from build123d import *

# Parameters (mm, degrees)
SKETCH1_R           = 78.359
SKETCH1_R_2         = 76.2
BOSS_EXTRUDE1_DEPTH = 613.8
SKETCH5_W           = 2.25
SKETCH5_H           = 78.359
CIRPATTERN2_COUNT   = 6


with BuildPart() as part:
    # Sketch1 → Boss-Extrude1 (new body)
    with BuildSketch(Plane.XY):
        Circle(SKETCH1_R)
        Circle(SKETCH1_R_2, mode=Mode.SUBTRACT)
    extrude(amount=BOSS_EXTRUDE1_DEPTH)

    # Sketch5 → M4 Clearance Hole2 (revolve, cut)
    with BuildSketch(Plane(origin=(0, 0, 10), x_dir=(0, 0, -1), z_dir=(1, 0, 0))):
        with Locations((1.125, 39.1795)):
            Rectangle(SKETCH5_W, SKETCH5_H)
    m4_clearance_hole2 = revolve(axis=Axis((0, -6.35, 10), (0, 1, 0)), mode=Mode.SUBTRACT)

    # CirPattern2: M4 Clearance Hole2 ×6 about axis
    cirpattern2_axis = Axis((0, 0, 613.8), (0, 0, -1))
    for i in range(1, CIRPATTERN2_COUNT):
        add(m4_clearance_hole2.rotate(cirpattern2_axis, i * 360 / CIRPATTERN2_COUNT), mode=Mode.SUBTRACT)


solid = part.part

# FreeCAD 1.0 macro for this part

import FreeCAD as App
import Part
import Sketcher
from FreeCAD import Vector
Q = App.Units.Quantity


def add_polygon(sketch, points):
    """Adds a closed chain of lines whose ends are joined by coincident constraints."""
    first, n = sketch.GeometryCount, len(points)
    for a, b in zip(points, points[1:] + points[:1]):
        sketch.addGeometry(Part.LineSegment(App.Vector(*a, 0), App.Vector(*b, 0)), False)
    for i in range(n):
        sketch.addConstraint(Sketcher.Constraint("Coincident", first + i, 2, first + (i + 1) % n, 1))

doc = App.newDocument("Part")
body = doc.addObject("PartDesign::Body", "Body")

sketch1 = doc.addObject("Sketcher::SketchObject", "Sketch")
body.addObject(sketch1)
sketch1.AttachmentSupport = (doc.XY_Plane, [""])
sketch1.MapMode = "FlatFace"
sketch1.addGeometry([
    Part.Circle(Vector(0, 0, 0), Vector(0, 0, 1), 78),
    Part.Circle(Vector(0, 0, 0), Vector(0, 0, 1), 76),
], False)
sketch1.addConstraint([
    Sketcher.Constraint("Coincident", 0, 3, -1, 1),
    Sketcher.Constraint("Coincident", 1, 3, -1, 1),
    Sketcher.Constraint("Diameter", 1, Q("6 in")),
    Sketcher.Constraint("Diameter", 0, Q("6.17 in")),
])
pad1 = doc.addObject("PartDesign::Pad", "Pad")
body.addObject(pad1)
pad1.Profile = sketch1
pad1.Length = 613.8

sketch2 = doc.addObject("Sketcher::SketchObject", "Sketch001")
body.addObject(sketch2)
sketch2.AttachmentSupport = (doc.YZ_Plane, [""])
sketch2.MapMode = "FlatFace"
add_polygon(sketch2, [(78.4, 10), (0, 10), (0, 7.8), (78.4, 7.8)])
sketch2.addGeometry(Part.LineSegment(Vector(0, 10, 0), Vector(78.4, 10, 0)), True)
sketch2.addConstraint([
    Sketcher.Constraint("Horizontal", 0),
    Sketcher.Constraint("Vertical", 1),
    Sketcher.Constraint("Horizontal", 2),
    Sketcher.Constraint("Vertical", 3),
    Sketcher.Constraint("Horizontal", 4),
    Sketcher.Constraint("Coincident", 4, 1, 0, 2),
    Sketcher.Constraint("PointOnObject", 0, 2, -2),
    Sketcher.Constraint("Vertical", 2, 2, 4, 2),
    Sketcher.Constraint("DistanceX", 0, 2, 0, 1, Q("3.085 in")),
    Sketcher.Constraint("DistanceY", 1, 2, 1, 1, Q("2.25 mm")),
    Sketcher.Constraint("DistanceY", -1, 1, 0, 2, Q("10 mm")),
])
groove = doc.addObject("PartDesign::Groove", "Groove")
body.addObject(groove)
groove.Profile = sketch2
groove.ReferenceAxis = (sketch2, ["Axis0"])
groove.Angle = 360
doc.recompute()

polarpattern = doc.addObject("PartDesign::PolarPattern", "PolarPattern")
body.addObject(polarpattern)
polarpattern.Originals = [groove]
polarpattern.Axis = (doc.Z_Axis, [""])
polarpattern.Angle = 360
polarpattern.Occurrences = 6
body.Tip = polarpattern

doc.recompute()
